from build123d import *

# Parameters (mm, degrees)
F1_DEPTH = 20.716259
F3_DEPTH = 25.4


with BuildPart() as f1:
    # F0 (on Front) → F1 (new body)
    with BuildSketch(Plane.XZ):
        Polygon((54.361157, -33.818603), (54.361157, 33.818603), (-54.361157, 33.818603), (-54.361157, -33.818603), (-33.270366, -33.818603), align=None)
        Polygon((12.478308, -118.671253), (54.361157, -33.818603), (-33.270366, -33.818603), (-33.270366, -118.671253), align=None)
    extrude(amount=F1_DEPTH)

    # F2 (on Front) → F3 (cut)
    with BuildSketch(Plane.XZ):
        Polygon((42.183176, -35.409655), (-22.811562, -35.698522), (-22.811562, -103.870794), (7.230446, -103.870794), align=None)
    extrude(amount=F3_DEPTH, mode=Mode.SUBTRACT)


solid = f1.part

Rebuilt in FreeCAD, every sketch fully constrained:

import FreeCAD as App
import Part
import Sketcher

V = App.Vector
Q = App.Units.Quantity

doc = App.newDocument("Part")
body = doc.addObject("PartDesign::Body", "Body")

sketch1 = body.newObject("Sketcher::SketchObject", "Sketch")
sketch1.AttachmentSupport = (doc.getObject("XZ_Plane"), [""])
sketch1.MapMode = "FlatFace"
sketch1.addGeometry([
    Part.LineSegment(V(54.361157, -33.818603, 0), V(54.361157, 33.818603, 0)),
    Part.LineSegment(V(54.361157, 33.818603, 0), V(-54.361157, 33.818603, 0)),
    Part.LineSegment(V(-54.361157, 33.818603, 0), V(-54.361157, -33.818603, 0)),
    Part.LineSegment(V(-54.361157, -33.818603, 0), V(-33.270366, -33.818603, 0)),
    Part.LineSegment(V(-33.270366, -33.818603, 0), V(-33.270366, -118.671253, 0)),
    Part.LineSegment(V(-33.270366, -118.671253, 0), V(12.478308, -118.671253, 0)),
    Part.LineSegment(V(12.478308, -118.671253, 0), V(54.361157, -33.818603, 0)),
], False)
sketch1.addConstraint([
    Sketcher.Constraint("Coincident", 0, 2, 1, 1),
    Sketcher.Constraint("Coincident", 1, 2, 2, 1),
    Sketcher.Constraint("Coincident", 2, 2, 3, 1),
    Sketcher.Constraint("Coincident", 3, 2, 4, 1),
    Sketcher.Constraint("Coincident", 4, 2, 5, 1),
    Sketcher.Constraint("Coincident", 5, 2, 6, 1),
    Sketcher.Constraint("Coincident", 6, 2, 0, 1),
    Sketcher.Constraint("Vertical", 0),
    Sketcher.Constraint("Horizontal", 1),
    Sketcher.Constraint("Vertical", 2),
    Sketcher.Constraint("Horizontal", 3),
    Sketcher.Constraint("Vertical", 4),
    Sketcher.Constraint("Horizontal", 5),
    Sketcher.Constraint("Symmetric", 0, 2, 2, 2, -1, 1),
    Sketcher.Constraint("Horizontal", 3, 2, 6, 2),
    Sketcher.Constraint("DistanceX", 3, 1, 3, 2, 21.090791),
    Sketcher.Constraint("DistanceY", 4, 2, 4, 1, 84.85265),
    Sketcher.Constraint("DistanceX", 1, 2, 1, 1, 108.722314),
    Sketcher.Constraint("DistanceX", 5, 1, 5, 2, 45.748674),
    Sketcher.Constraint("DistanceY", 0, 1, 0, 2, 67.637206),
])
pad1 = body.newObject("PartDesign::Pad", "Pad")
pad1.Profile = sketch1
pad1.Length = 20.716259

sketch2 = body.newObject("Sketcher::SketchObject", "Sketch001")
sketch2.AttachmentSupport = (doc.getObject("XZ_Plane"), [""])
sketch2.MapMode = "FlatFace"
sketch2.addGeometry([
    Part.LineSegment(V(42.183176, -35.409655, 0), V(-22.811562, -35.698522, 0)),
    Part.LineSegment(V(-22.811562, -35.698522, 0), V(-22.811562, -103.870794, 0)),
    Part.LineSegment(V(-22.811562, -103.870794, 0), V(7.230446, -103.870794, 0)),
    Part.LineSegment(V(7.230446, -103.870794, 0), V(42.183176, -35.409655, 0)),
], False)
sketch2.addConstraint([
    Sketcher.Constraint("Coincident", 0, 2, 1, 1),
    Sketcher.Constraint("Coincident", 1, 2, 2, 1),
    Sketcher.Constraint("Coincident", 2, 2, 3, 1),
    Sketcher.Constraint("Coincident", 3, 2, 0, 1),
    Sketcher.Constraint("Vertical", 1),
    Sketcher.Constraint("Horizontal", 2),
    Sketcher.Constraint("Distance", 0, 64.99538),
    Sketcher.Constraint("DistanceX", 2, 1, 2, 2, 30.042008),
    Sketcher.Constraint("DistanceY", 1, 2, 1, 1, 68.172272),
    Sketcher.Constraint("DistanceX", 0, 2, -1, 1, 22.811562),
    Sketcher.Constraint("DistanceY", 0, 2, -1, 1, 35.698522),
    Sketcher.Constraint("DistanceX", 0, 2, 3, 2, 64.994738),
])
pocket1 = body.newObject("PartDesign::Pocket", "Pocket")
pocket1.Profile = sketch2
pocket1.Length = Q("1 in")
pocket1.Reversed = True

doc.recompute()
